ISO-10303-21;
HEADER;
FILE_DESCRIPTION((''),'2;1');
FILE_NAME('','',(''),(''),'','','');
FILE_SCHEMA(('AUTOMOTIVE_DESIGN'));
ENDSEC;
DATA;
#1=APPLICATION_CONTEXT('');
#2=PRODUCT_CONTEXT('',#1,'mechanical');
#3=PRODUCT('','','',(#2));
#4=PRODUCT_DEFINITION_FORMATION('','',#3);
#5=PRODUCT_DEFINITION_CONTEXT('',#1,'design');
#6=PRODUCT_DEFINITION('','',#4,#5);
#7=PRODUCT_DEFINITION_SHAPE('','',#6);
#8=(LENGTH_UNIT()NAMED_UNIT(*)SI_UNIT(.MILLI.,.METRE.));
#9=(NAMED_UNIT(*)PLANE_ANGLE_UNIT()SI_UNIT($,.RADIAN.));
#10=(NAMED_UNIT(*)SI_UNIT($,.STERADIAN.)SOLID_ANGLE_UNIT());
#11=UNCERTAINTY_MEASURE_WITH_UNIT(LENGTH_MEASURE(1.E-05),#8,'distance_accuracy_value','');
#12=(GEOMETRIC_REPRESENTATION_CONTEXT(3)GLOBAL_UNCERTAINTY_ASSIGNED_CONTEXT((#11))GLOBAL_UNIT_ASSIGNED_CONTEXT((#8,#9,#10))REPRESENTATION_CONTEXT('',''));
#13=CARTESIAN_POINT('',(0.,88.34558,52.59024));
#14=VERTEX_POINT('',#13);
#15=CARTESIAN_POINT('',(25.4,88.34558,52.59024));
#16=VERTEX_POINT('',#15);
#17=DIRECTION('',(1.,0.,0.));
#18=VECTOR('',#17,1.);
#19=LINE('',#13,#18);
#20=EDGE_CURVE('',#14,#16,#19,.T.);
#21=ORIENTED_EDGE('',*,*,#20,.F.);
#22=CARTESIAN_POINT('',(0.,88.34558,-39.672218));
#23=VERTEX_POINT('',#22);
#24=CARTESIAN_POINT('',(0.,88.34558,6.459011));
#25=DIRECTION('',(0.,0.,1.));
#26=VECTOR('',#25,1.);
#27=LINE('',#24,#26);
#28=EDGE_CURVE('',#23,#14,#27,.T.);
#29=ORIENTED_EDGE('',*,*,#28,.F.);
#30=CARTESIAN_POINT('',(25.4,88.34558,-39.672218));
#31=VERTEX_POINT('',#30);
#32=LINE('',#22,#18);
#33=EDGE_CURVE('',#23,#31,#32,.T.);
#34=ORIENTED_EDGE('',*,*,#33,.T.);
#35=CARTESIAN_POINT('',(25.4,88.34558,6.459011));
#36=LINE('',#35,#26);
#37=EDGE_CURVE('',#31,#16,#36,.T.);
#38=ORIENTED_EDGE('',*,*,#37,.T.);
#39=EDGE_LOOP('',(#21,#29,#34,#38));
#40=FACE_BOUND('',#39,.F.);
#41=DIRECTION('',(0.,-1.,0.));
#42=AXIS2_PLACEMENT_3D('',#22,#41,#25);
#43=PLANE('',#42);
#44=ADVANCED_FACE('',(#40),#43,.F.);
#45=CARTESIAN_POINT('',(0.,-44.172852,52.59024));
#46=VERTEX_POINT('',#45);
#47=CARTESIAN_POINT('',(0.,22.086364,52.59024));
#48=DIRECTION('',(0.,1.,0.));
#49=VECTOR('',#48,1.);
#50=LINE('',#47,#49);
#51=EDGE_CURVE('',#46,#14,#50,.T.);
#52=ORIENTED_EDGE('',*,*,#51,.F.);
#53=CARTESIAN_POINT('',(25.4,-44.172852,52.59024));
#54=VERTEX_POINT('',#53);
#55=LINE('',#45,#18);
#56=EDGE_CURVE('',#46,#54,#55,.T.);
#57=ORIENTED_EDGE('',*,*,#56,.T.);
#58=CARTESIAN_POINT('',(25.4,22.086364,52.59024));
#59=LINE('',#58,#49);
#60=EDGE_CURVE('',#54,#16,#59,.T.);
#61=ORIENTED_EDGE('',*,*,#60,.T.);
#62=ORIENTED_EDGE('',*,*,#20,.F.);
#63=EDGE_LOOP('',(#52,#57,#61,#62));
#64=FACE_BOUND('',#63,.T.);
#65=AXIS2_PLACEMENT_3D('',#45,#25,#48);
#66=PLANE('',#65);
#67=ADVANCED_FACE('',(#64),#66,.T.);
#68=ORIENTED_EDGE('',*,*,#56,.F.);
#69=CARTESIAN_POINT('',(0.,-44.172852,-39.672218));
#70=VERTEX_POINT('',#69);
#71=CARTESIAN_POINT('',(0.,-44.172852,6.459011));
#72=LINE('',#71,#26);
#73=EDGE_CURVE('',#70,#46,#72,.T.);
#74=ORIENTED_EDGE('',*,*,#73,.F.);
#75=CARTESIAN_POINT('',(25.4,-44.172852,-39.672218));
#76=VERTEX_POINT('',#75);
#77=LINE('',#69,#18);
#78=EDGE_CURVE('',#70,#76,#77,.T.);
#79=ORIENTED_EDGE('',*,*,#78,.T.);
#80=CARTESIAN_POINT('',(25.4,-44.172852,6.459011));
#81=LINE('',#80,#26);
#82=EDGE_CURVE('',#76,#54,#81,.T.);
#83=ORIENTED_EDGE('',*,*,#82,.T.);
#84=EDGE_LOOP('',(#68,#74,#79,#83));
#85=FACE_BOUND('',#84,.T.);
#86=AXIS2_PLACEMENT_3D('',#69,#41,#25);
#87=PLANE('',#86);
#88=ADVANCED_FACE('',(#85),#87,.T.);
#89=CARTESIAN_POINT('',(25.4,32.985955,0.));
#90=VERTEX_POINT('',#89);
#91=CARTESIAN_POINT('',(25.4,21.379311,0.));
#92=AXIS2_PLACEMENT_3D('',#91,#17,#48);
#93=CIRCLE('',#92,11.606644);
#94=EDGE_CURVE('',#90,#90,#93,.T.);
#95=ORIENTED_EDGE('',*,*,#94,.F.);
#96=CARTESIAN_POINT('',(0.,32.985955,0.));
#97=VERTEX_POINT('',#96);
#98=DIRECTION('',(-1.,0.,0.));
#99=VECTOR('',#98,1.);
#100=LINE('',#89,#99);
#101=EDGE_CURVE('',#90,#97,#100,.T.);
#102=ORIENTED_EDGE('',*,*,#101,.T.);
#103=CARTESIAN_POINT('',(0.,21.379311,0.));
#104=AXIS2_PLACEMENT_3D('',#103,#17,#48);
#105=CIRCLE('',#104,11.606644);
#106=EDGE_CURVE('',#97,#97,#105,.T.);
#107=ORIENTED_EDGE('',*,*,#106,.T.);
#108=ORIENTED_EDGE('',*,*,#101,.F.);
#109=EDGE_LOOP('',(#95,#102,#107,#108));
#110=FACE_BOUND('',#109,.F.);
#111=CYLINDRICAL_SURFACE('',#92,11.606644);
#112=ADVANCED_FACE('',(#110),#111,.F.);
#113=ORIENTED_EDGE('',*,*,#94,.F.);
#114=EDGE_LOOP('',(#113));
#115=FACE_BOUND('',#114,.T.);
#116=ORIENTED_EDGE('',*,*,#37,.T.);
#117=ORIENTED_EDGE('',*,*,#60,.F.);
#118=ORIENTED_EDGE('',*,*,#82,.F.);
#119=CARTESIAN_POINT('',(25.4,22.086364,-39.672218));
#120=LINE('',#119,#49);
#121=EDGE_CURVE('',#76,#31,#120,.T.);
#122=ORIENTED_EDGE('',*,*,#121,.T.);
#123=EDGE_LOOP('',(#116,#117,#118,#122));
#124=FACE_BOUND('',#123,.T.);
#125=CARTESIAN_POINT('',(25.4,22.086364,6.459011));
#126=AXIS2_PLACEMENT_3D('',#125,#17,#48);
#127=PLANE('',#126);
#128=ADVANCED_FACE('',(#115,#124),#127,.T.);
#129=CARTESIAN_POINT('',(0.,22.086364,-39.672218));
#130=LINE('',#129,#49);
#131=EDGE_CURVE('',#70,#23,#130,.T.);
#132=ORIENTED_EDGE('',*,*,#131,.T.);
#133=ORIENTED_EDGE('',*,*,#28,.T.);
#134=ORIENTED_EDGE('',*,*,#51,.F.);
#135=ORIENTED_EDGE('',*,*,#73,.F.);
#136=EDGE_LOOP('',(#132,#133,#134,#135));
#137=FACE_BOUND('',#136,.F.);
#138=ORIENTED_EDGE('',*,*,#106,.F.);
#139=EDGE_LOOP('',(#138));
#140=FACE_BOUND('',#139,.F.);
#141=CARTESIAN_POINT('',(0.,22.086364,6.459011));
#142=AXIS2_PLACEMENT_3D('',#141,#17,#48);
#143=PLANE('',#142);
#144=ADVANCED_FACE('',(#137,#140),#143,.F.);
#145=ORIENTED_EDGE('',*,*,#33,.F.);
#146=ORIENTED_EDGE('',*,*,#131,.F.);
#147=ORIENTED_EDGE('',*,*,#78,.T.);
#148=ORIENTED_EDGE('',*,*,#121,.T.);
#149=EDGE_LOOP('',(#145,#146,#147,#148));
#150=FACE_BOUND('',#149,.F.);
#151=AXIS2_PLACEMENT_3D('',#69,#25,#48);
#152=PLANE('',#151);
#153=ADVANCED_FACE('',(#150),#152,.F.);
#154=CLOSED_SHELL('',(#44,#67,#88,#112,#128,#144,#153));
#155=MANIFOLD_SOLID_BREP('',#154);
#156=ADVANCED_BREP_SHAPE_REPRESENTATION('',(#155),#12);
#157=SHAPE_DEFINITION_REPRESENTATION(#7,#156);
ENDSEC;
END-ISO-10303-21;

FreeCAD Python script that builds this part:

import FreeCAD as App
import Part
import Sketcher

V = App.Vector
Q = App.Units.Quantity


def add_polygon(sketch, points):
    """Adds a closed chain of lines whose ends are joined by coincident constraints."""
    first, n = sketch.GeometryCount, len(points)
    for a, b in zip(points, points[1:] + points[:1]):
        sketch.addGeometry(Part.LineSegment(App.Vector(*a, 0), App.Vector(*b, 0)), False)
    for i in range(n):
        sketch.addConstraint(Sketcher.Constraint("Coincident", first + i, 2, first + (i + 1) % n, 1))

doc = App.newDocument("Part")
params = doc.addObject("Spreadsheet::Sheet", "Params")
for row, (alias, value) in enumerate([
    ("pad1_length", "1 in"),
    ("pocket1_length", "1 in"),
], start=1):
    params.set(f"A{row}", alias)
    params.set(f"B{row}", "=" + value)
    params.setAlias(f"B{row}", alias)

body = doc.addObject("PartDesign::Body", "Body")

sketch1 = body.newObject("Sketcher::SketchObject", "Sketch")
sketch1.AttachmentSupport = (doc.getObject("YZ_Plane"), [""])
sketch1.MapMode = "FlatFace"
add_polygon(sketch1, [(-44, 53), (-44, -40), (88, -40), (88, 53)])
sketch1.addConstraint(Sketcher.Constraint("Vertical", 0))
sketch1.addConstraint(Sketcher.Constraint("Horizontal", 1))
sketch1.addConstraint(Sketcher.Constraint("Vertical", 2))
sketch1.addConstraint(Sketcher.Constraint("Horizontal", 3))
sketch1.addConstraint(Sketcher.Constraint("DistanceY", 0, 2, 0, 1, Q("92.262458 mm")))
sketch1.addConstraint(Sketcher.Constraint("DistanceX", 1, 1, 1, 2, Q("132.518433 mm")))
sketch1.addConstraint(Sketcher.Constraint("DistanceX", -1, 1, 1, 2, Q("88.34558 mm")))
sketch1.addConstraint(Sketcher.Constraint("DistanceY", -1, 1, 2, 2, Q("52.59024 mm")))
pad1 = body.newObject("PartDesign::Pad", "Pad")
pad1.Profile = sketch1
pad1.setExpression("Length", "Params.pad1_length")

sketch2 = body.newObject("Sketcher::SketchObject", "Sketch001")
sketch2.AttachmentSupport = (doc.getObject("YZ_Plane"), [""])
sketch2.MapMode = "FlatFace"
sketch2.AttachmentOffset = App.Placement(V(0, 0, 1 * 25.4), App.Rotation())
sketch2.addGeometry(Part.Circle(V(21, 0, 0), V(0, 0, 1), 12), False)
sketch2.addConstraint(Sketcher.Constraint("PointOnObject", 0, 3, -1))
sketch2.addConstraint(Sketcher.Constraint("Diameter", 0, Q("23.213288 mm")))
sketch2.addConstraint(Sketcher.Constraint("DistanceX", -1, 1, 0, 3, Q("21.379311 mm")))
pocket1 = body.newObject("PartDesign::Pocket", "Pocket")
pocket1.Profile = sketch2
pocket1.setExpression("Length", "Params.pocket1_length")

doc.recompute()
